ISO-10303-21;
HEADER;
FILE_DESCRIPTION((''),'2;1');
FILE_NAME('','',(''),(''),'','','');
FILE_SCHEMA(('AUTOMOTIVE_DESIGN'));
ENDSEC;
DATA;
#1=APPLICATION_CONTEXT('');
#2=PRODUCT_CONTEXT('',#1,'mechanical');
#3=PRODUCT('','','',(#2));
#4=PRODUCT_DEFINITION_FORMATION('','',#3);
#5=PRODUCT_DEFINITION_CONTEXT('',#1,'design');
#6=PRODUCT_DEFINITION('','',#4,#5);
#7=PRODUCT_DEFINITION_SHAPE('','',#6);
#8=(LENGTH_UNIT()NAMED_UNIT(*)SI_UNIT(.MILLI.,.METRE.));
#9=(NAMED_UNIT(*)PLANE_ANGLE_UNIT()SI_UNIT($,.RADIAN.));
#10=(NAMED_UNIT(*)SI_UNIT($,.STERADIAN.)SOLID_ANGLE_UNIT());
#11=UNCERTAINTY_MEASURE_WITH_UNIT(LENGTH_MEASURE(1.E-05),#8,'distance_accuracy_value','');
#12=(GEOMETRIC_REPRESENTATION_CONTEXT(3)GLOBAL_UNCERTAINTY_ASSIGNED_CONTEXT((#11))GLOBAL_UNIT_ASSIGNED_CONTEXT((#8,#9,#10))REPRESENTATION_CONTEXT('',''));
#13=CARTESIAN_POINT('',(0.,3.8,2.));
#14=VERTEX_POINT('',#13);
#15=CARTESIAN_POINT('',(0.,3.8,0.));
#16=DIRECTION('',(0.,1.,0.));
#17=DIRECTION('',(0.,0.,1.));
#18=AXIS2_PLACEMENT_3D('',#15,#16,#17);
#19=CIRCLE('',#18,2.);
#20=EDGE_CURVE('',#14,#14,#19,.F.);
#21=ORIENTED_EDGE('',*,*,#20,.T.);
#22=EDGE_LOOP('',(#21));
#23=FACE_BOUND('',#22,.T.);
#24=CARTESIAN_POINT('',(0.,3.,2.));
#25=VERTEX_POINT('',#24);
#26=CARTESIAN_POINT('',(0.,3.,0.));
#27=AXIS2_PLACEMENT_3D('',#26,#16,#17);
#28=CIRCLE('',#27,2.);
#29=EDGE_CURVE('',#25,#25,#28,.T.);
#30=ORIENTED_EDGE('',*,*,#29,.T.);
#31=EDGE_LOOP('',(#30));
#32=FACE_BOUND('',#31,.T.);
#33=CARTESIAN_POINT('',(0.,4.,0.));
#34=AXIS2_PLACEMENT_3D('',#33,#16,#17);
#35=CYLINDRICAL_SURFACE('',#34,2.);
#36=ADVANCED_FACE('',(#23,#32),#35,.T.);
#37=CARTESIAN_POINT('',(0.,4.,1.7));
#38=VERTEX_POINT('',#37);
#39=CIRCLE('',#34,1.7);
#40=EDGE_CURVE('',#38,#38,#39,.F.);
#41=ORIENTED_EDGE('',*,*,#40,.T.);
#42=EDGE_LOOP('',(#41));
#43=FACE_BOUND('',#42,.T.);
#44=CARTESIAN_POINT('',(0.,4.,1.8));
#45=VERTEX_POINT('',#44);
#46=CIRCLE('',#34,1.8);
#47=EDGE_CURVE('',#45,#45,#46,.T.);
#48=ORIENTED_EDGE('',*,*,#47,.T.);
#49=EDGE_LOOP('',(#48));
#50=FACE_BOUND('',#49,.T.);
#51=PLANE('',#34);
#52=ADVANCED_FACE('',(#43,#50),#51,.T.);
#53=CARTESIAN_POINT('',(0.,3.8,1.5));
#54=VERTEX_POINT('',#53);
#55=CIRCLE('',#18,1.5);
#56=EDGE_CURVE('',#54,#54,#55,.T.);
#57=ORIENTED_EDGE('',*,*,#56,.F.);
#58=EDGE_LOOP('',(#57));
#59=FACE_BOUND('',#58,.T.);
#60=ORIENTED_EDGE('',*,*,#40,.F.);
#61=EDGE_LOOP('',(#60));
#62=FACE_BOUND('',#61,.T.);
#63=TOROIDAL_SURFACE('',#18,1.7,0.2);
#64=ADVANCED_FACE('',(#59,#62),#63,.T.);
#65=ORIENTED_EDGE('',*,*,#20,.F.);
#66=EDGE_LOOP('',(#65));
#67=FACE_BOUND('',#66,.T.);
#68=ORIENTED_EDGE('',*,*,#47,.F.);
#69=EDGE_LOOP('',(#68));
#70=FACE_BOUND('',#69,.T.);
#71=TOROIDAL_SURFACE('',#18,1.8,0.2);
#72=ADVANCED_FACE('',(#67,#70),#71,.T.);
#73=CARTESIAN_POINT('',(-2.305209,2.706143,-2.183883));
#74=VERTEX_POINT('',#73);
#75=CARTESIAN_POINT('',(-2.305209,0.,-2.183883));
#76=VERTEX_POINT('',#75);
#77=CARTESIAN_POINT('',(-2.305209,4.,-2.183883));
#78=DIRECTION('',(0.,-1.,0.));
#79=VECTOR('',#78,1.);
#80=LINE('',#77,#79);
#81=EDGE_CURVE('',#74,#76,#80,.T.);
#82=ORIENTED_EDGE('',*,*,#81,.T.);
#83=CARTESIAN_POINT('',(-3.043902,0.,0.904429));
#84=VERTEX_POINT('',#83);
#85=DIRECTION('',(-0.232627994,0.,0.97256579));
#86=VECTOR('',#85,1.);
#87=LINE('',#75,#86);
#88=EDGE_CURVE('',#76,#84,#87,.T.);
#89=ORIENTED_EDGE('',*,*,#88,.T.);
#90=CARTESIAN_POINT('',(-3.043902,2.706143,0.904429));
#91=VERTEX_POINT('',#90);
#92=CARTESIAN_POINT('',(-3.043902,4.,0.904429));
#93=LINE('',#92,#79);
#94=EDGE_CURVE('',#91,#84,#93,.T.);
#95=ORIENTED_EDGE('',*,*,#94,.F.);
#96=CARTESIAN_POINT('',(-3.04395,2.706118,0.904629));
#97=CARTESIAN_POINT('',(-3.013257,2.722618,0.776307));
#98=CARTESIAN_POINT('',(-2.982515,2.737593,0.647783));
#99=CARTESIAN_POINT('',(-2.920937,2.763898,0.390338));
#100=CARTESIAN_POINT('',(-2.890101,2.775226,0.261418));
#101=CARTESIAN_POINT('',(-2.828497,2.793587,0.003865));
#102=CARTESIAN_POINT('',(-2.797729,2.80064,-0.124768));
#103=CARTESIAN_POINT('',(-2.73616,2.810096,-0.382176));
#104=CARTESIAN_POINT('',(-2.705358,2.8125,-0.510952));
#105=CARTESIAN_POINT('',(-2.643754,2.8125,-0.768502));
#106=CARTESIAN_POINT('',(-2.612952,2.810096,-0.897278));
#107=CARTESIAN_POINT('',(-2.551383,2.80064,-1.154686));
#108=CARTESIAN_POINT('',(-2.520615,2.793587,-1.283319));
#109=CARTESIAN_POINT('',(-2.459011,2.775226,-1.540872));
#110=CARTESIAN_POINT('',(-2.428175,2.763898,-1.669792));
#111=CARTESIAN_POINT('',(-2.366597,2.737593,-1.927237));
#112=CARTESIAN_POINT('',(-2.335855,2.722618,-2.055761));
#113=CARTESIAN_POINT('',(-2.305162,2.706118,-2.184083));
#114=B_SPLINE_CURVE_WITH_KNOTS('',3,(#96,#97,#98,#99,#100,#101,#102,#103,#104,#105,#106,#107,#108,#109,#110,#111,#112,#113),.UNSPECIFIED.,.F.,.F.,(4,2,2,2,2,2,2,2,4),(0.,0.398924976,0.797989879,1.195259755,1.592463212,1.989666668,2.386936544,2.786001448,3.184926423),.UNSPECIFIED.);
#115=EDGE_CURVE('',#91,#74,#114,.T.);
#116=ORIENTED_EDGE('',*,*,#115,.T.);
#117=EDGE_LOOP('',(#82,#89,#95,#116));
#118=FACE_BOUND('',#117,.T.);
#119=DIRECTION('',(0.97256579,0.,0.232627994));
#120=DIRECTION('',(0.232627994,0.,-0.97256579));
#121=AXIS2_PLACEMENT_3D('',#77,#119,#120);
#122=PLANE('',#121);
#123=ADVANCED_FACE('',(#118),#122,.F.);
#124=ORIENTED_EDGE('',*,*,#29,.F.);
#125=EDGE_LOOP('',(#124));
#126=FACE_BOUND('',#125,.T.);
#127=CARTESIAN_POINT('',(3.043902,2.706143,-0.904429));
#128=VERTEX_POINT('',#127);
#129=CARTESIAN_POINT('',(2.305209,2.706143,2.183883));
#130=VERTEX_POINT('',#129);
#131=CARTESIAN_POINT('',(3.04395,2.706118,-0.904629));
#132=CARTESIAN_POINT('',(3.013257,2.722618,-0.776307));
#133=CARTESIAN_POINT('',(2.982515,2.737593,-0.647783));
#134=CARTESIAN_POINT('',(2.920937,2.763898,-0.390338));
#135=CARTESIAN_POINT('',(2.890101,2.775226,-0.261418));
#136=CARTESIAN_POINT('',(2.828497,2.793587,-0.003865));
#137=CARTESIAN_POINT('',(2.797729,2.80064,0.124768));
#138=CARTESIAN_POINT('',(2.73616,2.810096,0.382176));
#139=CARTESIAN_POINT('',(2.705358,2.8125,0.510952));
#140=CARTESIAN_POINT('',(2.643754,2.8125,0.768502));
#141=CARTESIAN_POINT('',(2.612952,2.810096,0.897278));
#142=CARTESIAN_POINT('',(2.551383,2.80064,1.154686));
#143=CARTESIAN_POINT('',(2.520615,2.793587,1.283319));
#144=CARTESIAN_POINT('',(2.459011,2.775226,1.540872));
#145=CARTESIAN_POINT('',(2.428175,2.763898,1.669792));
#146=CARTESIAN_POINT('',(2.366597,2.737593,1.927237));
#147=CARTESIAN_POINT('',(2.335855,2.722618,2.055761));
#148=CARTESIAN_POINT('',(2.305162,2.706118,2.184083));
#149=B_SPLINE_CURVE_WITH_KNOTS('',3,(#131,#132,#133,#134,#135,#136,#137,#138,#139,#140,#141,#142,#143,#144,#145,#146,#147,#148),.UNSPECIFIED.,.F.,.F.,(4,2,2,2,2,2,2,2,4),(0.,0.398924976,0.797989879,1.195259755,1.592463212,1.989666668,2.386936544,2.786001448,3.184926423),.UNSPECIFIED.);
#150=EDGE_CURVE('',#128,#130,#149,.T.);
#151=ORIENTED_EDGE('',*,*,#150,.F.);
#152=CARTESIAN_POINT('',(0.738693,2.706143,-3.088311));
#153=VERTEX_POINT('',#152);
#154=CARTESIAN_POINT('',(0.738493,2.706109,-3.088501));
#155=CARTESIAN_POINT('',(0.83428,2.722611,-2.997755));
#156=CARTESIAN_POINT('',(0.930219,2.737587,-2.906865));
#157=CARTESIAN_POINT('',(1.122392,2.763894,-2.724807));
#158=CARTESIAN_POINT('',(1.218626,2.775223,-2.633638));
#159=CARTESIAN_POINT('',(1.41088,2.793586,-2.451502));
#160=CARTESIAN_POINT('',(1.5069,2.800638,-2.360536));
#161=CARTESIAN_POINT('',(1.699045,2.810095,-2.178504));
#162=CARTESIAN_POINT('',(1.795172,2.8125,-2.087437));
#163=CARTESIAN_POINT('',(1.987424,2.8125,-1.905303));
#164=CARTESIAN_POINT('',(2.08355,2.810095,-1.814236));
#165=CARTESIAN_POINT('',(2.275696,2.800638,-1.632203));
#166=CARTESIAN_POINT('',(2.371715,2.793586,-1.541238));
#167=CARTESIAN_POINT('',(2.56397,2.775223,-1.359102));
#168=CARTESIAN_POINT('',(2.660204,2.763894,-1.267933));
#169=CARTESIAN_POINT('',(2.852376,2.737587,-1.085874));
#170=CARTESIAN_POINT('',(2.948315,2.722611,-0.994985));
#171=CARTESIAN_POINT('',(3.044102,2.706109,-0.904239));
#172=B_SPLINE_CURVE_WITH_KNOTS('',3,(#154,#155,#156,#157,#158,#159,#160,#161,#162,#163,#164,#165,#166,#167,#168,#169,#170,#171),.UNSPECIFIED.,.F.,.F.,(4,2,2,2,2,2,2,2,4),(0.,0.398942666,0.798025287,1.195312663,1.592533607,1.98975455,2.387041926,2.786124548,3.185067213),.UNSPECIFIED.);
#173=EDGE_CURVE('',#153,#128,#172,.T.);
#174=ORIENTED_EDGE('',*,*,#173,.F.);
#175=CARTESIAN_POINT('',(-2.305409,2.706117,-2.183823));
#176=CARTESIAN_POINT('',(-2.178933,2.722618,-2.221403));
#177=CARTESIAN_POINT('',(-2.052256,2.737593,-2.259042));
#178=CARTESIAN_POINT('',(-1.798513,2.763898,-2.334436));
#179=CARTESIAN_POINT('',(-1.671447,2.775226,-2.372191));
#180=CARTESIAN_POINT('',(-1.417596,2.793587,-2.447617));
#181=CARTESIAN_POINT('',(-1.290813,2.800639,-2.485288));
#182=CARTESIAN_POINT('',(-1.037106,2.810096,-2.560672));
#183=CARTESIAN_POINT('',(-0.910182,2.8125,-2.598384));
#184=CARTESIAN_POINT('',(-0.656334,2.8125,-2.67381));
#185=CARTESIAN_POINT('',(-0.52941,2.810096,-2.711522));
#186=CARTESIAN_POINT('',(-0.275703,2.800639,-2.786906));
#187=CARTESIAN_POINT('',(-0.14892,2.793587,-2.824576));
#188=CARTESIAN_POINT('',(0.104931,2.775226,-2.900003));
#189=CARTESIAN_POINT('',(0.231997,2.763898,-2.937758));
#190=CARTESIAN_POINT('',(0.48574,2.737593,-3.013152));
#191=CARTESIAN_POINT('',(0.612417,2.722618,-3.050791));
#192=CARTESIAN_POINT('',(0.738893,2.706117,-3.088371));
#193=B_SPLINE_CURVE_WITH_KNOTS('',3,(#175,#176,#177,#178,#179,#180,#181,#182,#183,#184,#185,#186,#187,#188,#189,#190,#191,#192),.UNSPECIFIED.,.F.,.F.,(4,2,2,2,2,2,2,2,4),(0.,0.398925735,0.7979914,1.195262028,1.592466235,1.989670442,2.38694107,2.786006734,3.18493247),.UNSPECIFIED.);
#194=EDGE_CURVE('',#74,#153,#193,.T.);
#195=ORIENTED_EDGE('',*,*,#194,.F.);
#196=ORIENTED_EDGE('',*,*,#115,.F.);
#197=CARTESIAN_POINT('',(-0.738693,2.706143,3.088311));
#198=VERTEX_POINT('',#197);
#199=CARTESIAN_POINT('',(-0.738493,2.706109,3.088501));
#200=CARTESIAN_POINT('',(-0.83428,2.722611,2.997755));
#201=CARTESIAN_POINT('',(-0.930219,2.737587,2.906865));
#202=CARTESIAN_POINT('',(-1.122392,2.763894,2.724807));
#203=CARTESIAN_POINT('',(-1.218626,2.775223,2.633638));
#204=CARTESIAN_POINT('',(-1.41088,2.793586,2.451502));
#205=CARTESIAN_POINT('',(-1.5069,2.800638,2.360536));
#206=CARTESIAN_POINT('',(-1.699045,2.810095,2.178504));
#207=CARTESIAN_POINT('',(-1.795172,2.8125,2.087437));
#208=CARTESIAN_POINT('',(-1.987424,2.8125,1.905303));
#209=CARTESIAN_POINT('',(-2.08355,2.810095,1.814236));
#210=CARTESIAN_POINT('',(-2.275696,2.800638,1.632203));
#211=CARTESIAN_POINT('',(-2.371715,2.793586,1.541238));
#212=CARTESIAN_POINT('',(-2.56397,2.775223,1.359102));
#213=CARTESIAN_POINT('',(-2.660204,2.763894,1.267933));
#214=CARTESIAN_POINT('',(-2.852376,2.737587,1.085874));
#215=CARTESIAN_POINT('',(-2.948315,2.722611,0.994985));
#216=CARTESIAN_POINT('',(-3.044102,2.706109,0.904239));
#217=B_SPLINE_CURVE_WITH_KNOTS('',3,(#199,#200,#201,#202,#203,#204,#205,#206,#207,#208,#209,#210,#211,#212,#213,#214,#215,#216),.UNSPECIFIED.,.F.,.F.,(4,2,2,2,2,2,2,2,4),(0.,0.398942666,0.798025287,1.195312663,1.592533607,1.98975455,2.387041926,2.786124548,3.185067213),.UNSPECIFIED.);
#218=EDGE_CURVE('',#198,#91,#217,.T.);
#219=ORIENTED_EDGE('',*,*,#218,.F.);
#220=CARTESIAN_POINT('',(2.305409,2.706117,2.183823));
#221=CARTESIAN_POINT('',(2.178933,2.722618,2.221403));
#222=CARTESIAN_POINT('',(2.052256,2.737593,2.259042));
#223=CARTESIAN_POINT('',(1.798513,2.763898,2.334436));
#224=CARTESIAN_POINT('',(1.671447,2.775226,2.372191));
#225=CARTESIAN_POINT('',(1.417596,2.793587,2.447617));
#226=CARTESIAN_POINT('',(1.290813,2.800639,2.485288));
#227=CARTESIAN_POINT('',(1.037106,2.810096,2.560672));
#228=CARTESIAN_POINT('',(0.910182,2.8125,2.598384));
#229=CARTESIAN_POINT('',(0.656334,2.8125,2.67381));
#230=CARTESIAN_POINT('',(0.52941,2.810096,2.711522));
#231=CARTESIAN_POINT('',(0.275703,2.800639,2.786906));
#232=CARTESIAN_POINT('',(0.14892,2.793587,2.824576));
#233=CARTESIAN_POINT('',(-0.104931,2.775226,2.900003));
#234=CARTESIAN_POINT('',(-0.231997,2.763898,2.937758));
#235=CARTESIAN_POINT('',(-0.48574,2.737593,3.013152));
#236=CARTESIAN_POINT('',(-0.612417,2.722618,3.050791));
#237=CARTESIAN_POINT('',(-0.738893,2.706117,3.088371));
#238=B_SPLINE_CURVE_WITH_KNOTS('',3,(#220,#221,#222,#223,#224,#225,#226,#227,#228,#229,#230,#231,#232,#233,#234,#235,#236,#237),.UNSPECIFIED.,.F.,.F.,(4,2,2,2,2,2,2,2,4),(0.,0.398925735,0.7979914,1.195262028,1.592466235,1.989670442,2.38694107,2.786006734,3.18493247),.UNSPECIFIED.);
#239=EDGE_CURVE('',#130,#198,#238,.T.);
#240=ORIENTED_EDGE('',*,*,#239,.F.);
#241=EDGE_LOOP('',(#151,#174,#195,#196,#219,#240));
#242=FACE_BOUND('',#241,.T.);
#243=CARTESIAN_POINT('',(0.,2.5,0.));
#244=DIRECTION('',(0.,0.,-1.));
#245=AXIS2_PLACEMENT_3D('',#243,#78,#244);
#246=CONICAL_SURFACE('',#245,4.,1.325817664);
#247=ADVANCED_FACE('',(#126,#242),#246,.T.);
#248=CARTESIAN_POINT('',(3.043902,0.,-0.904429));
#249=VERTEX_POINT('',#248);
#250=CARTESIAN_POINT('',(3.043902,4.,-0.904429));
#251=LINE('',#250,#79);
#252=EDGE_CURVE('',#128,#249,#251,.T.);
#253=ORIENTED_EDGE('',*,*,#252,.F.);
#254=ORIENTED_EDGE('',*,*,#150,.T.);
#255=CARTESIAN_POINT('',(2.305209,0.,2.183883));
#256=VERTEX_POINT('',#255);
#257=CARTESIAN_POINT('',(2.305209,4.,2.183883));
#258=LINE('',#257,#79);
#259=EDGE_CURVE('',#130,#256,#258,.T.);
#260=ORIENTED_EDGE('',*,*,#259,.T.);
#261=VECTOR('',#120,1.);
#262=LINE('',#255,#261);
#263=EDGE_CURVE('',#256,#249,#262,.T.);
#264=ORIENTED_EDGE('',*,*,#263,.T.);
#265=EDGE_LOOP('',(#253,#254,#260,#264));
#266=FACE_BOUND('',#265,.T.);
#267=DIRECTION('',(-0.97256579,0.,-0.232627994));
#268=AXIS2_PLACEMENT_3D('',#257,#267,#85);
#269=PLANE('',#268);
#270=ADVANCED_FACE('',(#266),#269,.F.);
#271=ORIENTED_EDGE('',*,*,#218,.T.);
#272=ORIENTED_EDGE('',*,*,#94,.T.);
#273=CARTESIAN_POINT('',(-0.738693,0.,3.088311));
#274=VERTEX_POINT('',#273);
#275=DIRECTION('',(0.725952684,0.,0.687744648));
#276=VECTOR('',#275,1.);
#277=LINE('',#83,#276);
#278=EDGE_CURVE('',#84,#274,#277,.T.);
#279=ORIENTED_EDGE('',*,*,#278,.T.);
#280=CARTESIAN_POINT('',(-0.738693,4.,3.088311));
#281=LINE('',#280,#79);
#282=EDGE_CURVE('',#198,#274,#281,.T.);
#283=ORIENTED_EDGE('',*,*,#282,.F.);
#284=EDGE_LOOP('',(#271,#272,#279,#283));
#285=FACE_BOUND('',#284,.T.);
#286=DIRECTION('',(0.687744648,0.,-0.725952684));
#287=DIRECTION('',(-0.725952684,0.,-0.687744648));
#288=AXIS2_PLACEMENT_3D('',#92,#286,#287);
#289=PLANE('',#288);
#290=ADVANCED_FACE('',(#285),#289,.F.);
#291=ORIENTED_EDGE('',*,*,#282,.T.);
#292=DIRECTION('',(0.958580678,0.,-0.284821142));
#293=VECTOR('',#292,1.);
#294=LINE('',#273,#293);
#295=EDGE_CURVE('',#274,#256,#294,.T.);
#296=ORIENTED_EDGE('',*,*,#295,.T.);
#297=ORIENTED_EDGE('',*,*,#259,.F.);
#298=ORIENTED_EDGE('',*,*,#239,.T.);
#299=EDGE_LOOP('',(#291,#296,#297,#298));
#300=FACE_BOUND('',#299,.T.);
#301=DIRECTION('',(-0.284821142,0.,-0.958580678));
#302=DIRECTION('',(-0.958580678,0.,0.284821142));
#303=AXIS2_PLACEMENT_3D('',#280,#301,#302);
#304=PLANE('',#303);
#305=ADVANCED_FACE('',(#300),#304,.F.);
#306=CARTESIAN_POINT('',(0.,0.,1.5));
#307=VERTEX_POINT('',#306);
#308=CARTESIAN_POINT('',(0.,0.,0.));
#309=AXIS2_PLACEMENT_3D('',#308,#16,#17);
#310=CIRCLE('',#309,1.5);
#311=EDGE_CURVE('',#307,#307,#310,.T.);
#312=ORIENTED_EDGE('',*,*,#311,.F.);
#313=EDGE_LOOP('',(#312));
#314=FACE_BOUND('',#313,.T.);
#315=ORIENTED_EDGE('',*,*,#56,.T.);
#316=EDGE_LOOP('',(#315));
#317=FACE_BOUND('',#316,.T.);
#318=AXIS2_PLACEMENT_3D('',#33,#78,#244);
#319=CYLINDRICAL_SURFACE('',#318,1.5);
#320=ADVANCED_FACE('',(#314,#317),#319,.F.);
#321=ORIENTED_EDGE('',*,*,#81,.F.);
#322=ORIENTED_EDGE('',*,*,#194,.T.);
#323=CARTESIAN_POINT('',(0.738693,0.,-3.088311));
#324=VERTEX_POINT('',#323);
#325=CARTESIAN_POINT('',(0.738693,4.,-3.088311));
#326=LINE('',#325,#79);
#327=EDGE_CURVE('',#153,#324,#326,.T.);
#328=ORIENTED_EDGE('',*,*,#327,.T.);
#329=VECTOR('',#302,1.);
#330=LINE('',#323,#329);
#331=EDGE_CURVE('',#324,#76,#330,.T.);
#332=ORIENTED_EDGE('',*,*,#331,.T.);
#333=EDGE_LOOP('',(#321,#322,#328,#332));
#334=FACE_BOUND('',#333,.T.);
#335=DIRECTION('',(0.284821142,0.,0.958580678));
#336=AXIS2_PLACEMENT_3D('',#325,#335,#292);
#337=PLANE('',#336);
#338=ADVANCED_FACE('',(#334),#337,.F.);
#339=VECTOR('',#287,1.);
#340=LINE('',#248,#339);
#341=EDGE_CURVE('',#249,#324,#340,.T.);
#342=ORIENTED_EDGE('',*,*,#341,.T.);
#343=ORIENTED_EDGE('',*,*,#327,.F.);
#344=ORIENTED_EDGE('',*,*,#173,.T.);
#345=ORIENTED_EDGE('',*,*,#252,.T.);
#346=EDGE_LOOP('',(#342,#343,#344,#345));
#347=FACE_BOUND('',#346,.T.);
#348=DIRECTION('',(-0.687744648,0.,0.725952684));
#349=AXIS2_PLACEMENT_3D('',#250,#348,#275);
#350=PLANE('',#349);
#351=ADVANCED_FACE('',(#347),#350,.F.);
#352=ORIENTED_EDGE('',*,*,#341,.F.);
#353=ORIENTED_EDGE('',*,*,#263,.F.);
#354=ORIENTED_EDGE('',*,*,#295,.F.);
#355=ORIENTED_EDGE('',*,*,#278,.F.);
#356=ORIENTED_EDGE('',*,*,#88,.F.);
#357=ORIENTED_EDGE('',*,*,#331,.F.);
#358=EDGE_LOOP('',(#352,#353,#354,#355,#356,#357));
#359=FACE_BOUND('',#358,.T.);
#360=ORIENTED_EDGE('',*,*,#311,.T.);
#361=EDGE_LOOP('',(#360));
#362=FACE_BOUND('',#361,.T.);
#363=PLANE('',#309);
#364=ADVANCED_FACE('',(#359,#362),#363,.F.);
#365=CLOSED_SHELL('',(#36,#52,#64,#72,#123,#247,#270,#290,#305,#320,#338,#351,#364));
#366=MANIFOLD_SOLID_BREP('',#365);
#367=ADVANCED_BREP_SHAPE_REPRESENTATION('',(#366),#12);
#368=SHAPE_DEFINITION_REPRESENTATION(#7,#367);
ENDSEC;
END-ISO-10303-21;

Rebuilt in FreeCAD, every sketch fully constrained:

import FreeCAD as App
import Part
import Sketcher
from FreeCAD import Vector
Q = App.Units.Quantity


def edges_at(feature, points):
    """Names of the edges that pass closest to the given points."""
    edges = feature.Shape.Edges
    near = lambda p: min(range(len(edges)), key=lambda i: edges[i].distToShape(Part.Vertex(*p))[0])
    return sorted({f"Edge{near(p) + 1}" for p in points})

doc = App.newDocument("Part")
body = doc.addObject("PartDesign::Body", "Body")

# Sketch on XZ plane
sketch1 = doc.addObject("Sketcher::SketchObject", "Sketch")
body.addObject(sketch1)
sketch1.AttachmentSupport = (doc.XZ_Plane, [""])
sketch1.MapMode = "FlatFace"
sketch1.addGeometry([
    Part.LineSegment(Vector(2.3, 2.2, 0), Vector(3, -0.9, 0)),  # 0
    Part.LineSegment(Vector(3, -0.9, 0), Vector(0.7, -3.1, 0)),  # 1
    Part.LineSegment(Vector(0.7, -3.1, 0), Vector(-2.3, -2.2, 0)),  # 2
    Part.LineSegment(Vector(-2.3, -2.2, 0), Vector(-3, 0.9, 0)),  # 3
    Part.LineSegment(Vector(-3, 0.9, 0), Vector(-0.7, 3.1, 0)),  # 4
    Part.LineSegment(Vector(-0.7, 3.1, 0), Vector(2.3, 2.2, 0)),  # 5
    Part.Circle(Vector(0, 0, 0), Vector(0, 0, 1), 1.5),  # 6
], False)
sketch1.addConstraint([
    Sketcher.Constraint("Coincident", 0, 2, 1, 1),
    Sketcher.Constraint("Coincident", 1, 2, 2, 1),
    Sketcher.Constraint("Coincident", 2, 2, 3, 1),
    Sketcher.Constraint("Coincident", 3, 2, 4, 1),
    Sketcher.Constraint("Coincident", 4, 2, 5, 1),
    Sketcher.Constraint("Coincident", 5, 2, 0, 1),
    Sketcher.Constraint("Coincident", 6, 3, -1, 1),
    Sketcher.Constraint("Symmetric", 0, 2, 3, 2, -1, 1),
    Sketcher.Constraint("Symmetric", 1, 2, 4, 2, -1, 1),
    Sketcher.Constraint("Symmetric", 2, 2, 5, 2, -1, 1),
    Sketcher.Constraint("Equal", 0, 1),
    Sketcher.Constraint("Equal", 1, 2),
    Sketcher.Constraint("Diameter", 6, Q("3 mm")),
    Sketcher.Constraint("DistanceY", 0, 2, -1, 1, Q("0.904429 mm")),
    Sketcher.Constraint("DistanceY", 1, 2, -1, 1, Q("3.088311 mm")),
    Sketcher.Constraint("DistanceX", 2, 2, -1, 1, Q("2.305209 mm")),
    Sketcher.Constraint("DistanceX", 1, 2, 0, 2, Q("2.305209 mm")),
])
pad1 = doc.addObject("PartDesign::Pad", "Pad")
body.addObject(pad1)
pad1.Profile = sketch1
pad1.Length = 4
pad1.Reversed = True

# Sketch on XY plane
sketch2 = doc.addObject("Sketcher::SketchObject", "Sketch001")
body.addObject(sketch2)
sketch2.AttachmentSupport = (doc.XY_Plane, [""])
sketch2.MapMode = "FlatFace"
sketch2.addGeometry([
    Part.LineSegment(Vector(-4, 2.5, 0), Vector(-2, 3, 0)),
    Part.LineSegment(Vector(-2, 3, 0), Vector(-2, 4, 0)),
    Part.LineSegment(Vector(-2, 4, 0), Vector(-4, 4, 0)),
    Part.LineSegment(Vector(-4, 4, 0), Vector(-4, 2.5, 0)),
], False)
sketch2.addConstraint([
    Sketcher.Constraint("Coincident", 0, 2, 1, 1),
    Sketcher.Constraint("Coincident", 1, 2, 2, 1),
    Sketcher.Constraint("Coincident", 2, 2, 3, 1),
    Sketcher.Constraint("Coincident", 3, 2, 0, 1),
    Sketcher.Constraint("Vertical", 1),
    Sketcher.Constraint("Horizontal", 2),
    Sketcher.Constraint("Vertical", 3),
    Sketcher.Constraint("DistanceX", 2, 2, 2, 1, Q("2 mm")),
    Sketcher.Constraint("DistanceY", 1, 1, 1, 2, Q("1 mm")),
    Sketcher.Constraint("DistanceY", 3, 2, 3, 1, Q("1.5 mm")),
    Sketcher.Constraint("DistanceX", 0, 2, -1, 1, Q("2 mm")),
    Sketcher.Constraint("DistanceY", -1, 1, 0, 2, Q("3 mm")),
])
groove = doc.addObject("PartDesign::Groove", "Groove")
body.addObject(groove)
groove.Profile = sketch2
groove.ReferenceAxis = (sketch2, ["V_Axis"])
groove.Angle = 360
doc.recompute()

fillet = doc.addObject("PartDesign::Fillet", "Fillet")
body.addObject(fillet)
fillet.Base = (groove, edges_at(groove, [(-1.5, 4, 0), (2, 4, 0)]))
fillet.Radius = 0.2

doc.recompute()
